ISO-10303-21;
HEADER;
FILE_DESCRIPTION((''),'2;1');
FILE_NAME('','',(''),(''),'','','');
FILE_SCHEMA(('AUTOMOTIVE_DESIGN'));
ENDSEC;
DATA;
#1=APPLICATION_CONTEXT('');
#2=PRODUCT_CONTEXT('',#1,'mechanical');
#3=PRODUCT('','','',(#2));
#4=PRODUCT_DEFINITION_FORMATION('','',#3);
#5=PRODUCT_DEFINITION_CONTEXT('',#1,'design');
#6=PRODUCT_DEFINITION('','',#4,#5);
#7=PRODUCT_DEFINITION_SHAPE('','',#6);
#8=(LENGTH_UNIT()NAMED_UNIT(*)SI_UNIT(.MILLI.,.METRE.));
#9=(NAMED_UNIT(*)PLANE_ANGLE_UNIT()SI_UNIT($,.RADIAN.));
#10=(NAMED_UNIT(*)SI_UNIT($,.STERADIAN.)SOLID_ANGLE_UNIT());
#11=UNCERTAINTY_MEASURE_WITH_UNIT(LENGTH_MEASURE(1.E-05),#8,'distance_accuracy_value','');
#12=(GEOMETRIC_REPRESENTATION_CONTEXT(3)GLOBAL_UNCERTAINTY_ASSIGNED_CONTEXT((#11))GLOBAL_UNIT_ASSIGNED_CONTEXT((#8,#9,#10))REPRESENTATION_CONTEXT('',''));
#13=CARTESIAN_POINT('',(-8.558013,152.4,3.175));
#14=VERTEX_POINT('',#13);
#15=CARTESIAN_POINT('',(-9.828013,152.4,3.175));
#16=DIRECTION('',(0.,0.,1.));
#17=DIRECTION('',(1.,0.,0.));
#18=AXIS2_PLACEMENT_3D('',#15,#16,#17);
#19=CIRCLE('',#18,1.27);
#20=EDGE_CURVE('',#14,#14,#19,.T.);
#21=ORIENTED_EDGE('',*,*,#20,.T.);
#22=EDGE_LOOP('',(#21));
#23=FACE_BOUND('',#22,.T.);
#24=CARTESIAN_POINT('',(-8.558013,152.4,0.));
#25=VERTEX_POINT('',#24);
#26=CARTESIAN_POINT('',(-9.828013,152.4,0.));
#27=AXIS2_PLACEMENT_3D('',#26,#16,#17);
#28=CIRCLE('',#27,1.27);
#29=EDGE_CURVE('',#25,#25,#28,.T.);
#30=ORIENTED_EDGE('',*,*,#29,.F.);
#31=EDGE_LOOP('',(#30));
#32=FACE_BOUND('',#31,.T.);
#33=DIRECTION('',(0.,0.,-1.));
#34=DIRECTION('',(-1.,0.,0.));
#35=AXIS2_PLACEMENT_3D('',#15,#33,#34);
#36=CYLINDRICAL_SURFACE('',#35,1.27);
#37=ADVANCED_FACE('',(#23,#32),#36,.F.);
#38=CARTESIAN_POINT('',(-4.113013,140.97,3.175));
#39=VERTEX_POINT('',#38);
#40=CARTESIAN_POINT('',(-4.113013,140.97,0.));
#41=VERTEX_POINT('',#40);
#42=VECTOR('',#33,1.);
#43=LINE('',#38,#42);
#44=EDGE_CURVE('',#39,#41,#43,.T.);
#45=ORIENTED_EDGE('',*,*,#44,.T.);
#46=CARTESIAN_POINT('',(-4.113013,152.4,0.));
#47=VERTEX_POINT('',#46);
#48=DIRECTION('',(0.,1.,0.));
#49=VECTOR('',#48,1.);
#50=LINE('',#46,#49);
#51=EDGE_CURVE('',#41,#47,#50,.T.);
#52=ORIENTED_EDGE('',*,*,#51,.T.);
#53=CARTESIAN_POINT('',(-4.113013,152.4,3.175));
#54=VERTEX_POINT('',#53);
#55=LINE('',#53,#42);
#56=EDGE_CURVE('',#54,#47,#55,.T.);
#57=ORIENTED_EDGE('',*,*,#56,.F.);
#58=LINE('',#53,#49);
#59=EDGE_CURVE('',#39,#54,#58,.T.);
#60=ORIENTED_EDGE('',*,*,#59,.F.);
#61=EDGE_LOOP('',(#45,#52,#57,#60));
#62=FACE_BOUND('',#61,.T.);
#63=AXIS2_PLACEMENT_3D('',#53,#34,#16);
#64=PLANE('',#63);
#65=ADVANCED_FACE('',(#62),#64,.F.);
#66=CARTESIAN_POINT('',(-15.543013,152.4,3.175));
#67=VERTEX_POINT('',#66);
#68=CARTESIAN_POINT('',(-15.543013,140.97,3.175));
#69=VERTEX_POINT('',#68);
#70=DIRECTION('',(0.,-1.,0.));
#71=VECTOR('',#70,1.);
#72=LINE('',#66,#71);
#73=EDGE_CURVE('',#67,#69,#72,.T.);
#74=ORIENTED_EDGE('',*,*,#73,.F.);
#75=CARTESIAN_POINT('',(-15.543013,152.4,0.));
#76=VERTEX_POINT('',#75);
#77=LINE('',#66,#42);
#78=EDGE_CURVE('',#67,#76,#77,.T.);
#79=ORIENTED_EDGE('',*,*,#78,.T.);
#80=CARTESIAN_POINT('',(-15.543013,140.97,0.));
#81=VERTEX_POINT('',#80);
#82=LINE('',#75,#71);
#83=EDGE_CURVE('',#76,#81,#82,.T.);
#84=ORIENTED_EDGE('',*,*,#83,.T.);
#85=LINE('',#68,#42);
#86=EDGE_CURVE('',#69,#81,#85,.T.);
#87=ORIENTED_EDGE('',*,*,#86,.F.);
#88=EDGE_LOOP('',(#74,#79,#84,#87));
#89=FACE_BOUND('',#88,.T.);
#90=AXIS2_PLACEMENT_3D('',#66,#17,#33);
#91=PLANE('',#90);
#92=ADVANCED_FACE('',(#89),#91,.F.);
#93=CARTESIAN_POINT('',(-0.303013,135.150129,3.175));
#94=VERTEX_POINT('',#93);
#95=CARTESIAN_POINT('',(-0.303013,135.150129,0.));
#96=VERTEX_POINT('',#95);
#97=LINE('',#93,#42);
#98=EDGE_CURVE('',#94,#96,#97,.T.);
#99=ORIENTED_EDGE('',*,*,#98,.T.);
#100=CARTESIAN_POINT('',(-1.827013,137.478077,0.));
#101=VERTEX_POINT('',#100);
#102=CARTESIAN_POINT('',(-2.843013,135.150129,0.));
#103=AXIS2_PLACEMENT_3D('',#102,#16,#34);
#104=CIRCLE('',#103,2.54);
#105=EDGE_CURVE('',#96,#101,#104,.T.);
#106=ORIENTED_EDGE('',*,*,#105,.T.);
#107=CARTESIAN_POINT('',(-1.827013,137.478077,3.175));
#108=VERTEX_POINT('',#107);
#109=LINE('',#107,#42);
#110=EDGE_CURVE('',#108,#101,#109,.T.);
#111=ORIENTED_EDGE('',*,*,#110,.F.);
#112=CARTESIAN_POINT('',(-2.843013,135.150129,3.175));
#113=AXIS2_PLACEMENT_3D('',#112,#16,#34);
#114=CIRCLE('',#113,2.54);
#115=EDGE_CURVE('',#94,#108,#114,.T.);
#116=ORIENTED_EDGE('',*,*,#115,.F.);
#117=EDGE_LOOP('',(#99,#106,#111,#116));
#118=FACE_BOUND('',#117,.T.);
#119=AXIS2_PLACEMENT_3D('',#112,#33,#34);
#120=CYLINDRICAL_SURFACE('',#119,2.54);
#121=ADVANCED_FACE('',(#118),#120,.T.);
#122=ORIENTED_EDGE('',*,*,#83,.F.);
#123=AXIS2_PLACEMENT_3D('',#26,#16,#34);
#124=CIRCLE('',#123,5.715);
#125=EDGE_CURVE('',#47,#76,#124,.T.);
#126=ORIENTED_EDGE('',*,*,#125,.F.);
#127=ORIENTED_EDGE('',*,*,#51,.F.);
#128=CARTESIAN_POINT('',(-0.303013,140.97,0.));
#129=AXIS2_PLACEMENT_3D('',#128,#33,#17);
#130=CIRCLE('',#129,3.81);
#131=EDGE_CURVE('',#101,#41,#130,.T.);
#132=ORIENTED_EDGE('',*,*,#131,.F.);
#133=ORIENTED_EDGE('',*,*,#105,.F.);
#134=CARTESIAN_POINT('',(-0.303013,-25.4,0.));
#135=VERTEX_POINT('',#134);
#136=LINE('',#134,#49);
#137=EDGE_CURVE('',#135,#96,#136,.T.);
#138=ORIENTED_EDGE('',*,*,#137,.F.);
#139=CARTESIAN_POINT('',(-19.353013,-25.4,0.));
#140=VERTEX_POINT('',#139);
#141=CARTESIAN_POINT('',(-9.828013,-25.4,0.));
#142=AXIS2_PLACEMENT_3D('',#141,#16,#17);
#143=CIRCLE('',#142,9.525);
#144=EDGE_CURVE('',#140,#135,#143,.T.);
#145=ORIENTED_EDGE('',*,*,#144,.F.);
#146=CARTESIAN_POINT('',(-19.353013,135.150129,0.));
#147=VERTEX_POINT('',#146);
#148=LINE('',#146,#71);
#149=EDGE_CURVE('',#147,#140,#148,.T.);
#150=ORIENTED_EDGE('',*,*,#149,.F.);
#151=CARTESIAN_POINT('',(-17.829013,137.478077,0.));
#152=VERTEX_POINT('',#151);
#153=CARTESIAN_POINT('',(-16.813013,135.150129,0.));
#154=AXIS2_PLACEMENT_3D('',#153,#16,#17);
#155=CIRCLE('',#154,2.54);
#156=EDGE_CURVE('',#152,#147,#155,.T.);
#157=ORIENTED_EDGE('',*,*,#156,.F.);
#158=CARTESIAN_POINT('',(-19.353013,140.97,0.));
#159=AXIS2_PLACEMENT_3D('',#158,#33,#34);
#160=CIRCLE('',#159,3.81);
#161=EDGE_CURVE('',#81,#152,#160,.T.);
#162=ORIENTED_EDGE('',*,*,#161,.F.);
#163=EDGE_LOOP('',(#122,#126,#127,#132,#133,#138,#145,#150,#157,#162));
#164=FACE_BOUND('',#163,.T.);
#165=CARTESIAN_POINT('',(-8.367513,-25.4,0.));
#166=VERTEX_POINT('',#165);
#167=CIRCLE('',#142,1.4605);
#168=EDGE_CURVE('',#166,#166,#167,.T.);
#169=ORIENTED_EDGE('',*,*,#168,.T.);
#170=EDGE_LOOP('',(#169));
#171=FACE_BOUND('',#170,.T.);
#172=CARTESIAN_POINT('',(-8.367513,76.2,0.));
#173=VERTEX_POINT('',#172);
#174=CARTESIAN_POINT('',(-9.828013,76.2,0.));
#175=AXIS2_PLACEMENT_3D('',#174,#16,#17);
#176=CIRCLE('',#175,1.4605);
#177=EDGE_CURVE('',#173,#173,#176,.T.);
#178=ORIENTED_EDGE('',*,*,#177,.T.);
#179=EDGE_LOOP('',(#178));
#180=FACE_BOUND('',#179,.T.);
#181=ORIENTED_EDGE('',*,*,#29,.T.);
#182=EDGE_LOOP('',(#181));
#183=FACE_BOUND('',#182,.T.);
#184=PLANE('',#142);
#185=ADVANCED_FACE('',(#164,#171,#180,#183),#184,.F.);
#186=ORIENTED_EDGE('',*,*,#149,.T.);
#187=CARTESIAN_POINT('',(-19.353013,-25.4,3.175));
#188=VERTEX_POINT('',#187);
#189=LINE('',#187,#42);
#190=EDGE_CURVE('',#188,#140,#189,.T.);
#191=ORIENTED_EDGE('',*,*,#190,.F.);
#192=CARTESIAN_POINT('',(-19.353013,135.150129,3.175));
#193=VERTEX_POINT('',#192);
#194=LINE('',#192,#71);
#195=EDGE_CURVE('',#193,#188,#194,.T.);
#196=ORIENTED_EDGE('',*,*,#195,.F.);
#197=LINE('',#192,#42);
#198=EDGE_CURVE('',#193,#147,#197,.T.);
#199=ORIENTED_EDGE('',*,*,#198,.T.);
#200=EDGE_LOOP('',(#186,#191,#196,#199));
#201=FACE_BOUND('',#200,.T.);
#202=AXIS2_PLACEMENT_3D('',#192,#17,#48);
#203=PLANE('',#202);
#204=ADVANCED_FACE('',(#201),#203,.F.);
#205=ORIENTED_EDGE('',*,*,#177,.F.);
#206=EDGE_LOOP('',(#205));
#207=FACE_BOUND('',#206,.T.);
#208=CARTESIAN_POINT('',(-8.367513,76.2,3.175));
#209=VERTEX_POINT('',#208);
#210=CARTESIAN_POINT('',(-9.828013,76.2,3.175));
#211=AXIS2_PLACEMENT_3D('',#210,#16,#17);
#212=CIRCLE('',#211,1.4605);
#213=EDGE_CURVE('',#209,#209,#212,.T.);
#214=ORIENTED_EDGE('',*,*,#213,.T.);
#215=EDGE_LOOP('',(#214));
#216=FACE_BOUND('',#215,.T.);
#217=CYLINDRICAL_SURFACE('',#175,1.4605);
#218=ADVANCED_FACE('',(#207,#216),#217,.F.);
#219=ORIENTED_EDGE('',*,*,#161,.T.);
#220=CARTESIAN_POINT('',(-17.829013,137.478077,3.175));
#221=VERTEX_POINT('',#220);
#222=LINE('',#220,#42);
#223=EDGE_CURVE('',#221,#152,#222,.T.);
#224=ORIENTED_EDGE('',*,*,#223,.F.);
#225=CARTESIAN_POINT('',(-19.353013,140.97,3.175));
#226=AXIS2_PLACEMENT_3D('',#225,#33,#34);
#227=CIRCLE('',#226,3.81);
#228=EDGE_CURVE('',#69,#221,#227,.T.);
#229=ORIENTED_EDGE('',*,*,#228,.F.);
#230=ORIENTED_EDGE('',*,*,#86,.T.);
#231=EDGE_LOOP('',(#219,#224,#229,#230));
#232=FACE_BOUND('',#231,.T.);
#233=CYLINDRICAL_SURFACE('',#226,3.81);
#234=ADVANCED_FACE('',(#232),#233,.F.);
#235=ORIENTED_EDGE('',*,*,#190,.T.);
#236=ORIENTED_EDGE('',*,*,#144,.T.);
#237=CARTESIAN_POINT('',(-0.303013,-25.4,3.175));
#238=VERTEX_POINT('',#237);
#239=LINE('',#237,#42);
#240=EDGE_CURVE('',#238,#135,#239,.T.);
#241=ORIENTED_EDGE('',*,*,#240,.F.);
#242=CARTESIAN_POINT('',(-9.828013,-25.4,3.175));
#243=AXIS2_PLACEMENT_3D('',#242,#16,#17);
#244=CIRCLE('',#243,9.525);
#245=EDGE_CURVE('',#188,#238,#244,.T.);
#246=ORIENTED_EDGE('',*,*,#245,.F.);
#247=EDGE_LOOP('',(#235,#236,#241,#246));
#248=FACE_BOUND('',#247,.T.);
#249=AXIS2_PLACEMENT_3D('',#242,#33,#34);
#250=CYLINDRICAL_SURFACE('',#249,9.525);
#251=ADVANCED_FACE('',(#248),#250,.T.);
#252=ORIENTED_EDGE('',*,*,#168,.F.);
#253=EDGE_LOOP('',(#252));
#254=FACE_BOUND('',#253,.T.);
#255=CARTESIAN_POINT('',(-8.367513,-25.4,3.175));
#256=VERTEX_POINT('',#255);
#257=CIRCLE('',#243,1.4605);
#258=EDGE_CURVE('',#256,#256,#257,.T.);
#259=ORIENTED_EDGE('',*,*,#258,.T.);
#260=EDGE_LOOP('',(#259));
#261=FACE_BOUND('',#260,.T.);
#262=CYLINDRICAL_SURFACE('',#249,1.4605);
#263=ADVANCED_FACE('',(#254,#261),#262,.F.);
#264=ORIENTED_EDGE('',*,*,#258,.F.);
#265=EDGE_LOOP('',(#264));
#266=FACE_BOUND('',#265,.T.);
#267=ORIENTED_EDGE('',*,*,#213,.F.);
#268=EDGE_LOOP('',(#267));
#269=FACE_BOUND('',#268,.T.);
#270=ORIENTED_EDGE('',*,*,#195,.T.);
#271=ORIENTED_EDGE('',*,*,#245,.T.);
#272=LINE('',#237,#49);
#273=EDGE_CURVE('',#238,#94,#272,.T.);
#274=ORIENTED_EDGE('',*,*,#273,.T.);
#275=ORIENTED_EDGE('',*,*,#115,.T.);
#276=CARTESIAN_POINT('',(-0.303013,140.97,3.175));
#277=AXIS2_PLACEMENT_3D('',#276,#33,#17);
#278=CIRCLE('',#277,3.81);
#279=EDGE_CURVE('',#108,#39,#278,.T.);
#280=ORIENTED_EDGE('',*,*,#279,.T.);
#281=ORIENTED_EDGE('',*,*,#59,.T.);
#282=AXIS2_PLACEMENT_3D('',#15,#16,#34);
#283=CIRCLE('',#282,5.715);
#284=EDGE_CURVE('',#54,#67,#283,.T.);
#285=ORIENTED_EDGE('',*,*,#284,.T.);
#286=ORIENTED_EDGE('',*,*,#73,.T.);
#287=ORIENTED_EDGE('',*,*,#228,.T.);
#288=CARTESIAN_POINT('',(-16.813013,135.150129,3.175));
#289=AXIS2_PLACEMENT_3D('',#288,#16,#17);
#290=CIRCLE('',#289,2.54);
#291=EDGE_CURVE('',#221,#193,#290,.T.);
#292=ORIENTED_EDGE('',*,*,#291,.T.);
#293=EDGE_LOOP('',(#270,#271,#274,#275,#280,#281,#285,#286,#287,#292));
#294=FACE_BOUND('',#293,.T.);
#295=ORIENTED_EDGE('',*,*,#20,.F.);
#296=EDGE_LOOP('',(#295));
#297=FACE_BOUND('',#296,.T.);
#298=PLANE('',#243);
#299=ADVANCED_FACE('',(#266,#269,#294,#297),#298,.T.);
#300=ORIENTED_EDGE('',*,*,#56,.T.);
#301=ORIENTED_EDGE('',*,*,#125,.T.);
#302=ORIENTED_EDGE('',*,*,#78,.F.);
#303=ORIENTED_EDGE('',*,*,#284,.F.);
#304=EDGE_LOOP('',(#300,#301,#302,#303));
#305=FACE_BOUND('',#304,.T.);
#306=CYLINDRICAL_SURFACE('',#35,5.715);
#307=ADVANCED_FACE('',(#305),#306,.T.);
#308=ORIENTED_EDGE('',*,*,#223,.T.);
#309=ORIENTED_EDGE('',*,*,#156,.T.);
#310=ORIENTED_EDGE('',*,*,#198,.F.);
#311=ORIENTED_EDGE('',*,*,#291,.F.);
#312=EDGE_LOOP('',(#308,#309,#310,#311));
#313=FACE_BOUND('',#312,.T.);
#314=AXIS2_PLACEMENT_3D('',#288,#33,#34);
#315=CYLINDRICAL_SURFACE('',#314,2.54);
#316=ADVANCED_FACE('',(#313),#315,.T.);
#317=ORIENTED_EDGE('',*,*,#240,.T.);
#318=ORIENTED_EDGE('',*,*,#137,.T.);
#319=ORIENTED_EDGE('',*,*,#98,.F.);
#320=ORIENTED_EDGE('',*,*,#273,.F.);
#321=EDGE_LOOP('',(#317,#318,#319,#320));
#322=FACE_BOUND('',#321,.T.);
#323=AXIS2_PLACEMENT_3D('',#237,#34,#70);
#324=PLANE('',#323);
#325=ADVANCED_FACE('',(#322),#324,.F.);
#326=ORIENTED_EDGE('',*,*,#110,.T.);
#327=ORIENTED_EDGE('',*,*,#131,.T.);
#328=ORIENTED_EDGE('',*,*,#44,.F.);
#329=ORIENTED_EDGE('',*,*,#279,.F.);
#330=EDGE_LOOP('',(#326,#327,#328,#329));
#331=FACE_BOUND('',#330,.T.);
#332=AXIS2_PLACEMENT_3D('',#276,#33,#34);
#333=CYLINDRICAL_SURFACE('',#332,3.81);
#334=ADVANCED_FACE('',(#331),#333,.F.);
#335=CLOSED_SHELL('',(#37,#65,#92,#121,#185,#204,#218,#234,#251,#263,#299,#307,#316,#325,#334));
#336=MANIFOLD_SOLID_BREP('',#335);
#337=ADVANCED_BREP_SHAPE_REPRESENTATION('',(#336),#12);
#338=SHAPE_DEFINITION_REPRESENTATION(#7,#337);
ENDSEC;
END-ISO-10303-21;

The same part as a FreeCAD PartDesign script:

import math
import FreeCAD as App
import Part
import Sketcher

V = App.Vector
Q = App.Units.Quantity

doc = App.newDocument("Part")
body = doc.addObject("PartDesign::Body", "Body")

# Sketch on XY plane
sketch1 = body.newObject("Sketcher::SketchObject", "Sketch")
sketch1.AttachmentSupport = (doc.getObject("XY_Plane"), [""])
sketch1.MapMode = "FlatFace"
sketch1.addGeometry(Part.LineSegment(V(-19.353013, 135.150129, 0), V(-19.353013, -25.4, 0)), False)
sketch1.addGeometry(Part.ArcOfCircle(Part.Circle(V(-9.828013, -25.4, 0), V(0, 0, 1), 9.525), math.radians(180), math.radians(360)), False)
sketch1.addGeometry(Part.LineSegment(V(-0.303013, -25.4, 0), V(-0.303013, 135.150129, 0)), False)
sketch1.addGeometry(Part.ArcOfCircle(Part.Circle(V(-2.843013, 135.150129, 0), V(0, 0, 1), 2.54), math.radians(0), math.radians(66.421821)), False)
sketch1.addGeometry(Part.ArcOfCircle(Part.Circle(V(-0.303013, 140.97, 0), V(0, 0, 1), 3.81), math.radians(180), math.radians(246.421822)), False)
sketch1.addGeometry(Part.LineSegment(V(-4.113013, 140.97, 0), V(-4.113013, 152.4, 0)), False)
sketch1.addGeometry(Part.ArcOfCircle(Part.Circle(V(-9.828013, 152.4, 0), V(0, 0, 1), 5.715), math.radians(0), math.radians(180)), False)
sketch1.addGeometry(Part.LineSegment(V(-15.543013, 152.4, 0), V(-15.543013, 140.97, 0)), False)
sketch1.addGeometry(Part.ArcOfCircle(Part.Circle(V(-19.353013, 140.97, 0), V(0, 0, 1), 3.81), math.radians(-66.421822), math.radians(0)), False)
sketch1.addGeometry(Part.ArcOfCircle(Part.Circle(V(-16.813013, 135.150129, 0), V(0, 0, 1), 2.54), math.radians(113.578178), math.radians(180)), False)
sketch1.addGeometry(Part.Circle(V(-9.828013, -25.4, 0), V(0, 0, 1), 1.4605), False)
sketch1.addGeometry(Part.Circle(V(-9.828013, 152.4, 0), V(0, 0, 1), 1.27), False)
sketch1.addConstraint(Sketcher.Constraint("Tangent", 0, 2, 1, 1))
sketch1.addConstraint(Sketcher.Constraint("Tangent", 1, 2, 2, 1))
sketch1.addConstraint(Sketcher.Constraint("Tangent", 2, 2, 3, 1))
sketch1.addConstraint(Sketcher.Constraint("Tangent", 3, 2, 4, 2))
sketch1.addConstraint(Sketcher.Constraint("Tangent", 4, 1, 5, 1))
sketch1.addConstraint(Sketcher.Constraint("Tangent", 5, 2, 6, 1))
sketch1.addConstraint(Sketcher.Constraint("Tangent", 6, 2, 7, 1))
sketch1.addConstraint(Sketcher.Constraint("Tangent", 7, 2, 8, 2))
sketch1.addConstraint(Sketcher.Constraint("Tangent", 8, 1, 9, 1))
sketch1.addConstraint(Sketcher.Constraint("Tangent", 9, 2, 0, 1))
sketch1.addConstraint(Sketcher.Constraint("Vertical", 0))
sketch1.addConstraint(Sketcher.Constraint("Vertical", 2))
sketch1.addConstraint(Sketcher.Constraint("Vertical", 5))
sketch1.addConstraint(Sketcher.Constraint("Vertical", 7))
sketch1.addConstraint(Sketcher.Constraint("Coincident", 10, 3, 1, 3))
sketch1.addConstraint(Sketcher.Constraint("Coincident", 11, 3, 6, 3))
sketch1.addConstraint(Sketcher.Constraint("Equal", 4, 8))
sketch1.addConstraint(Sketcher.Constraint("Equal", 3, 9))
sketch1.addConstraint(Sketcher.Constraint("Horizontal", 4, 3, 8, 3))
sketch1.addConstraint(Sketcher.Constraint("Horizontal", 3, 3, 9, 3))
sketch1.addConstraint(Sketcher.Constraint("Vertical", 8, 3, 0, 2))
sketch1.addConstraint(Sketcher.Constraint("Diameter", 11, Q("0.1 in")))
sketch1.addConstraint(Sketcher.Constraint("Radius", 3, Q("0.1 in")))
sketch1.addConstraint(Sketcher.Constraint("Radius", 4, Q("0.15 in")))
sketch1.addConstraint(Sketcher.Constraint("Diameter", 10, Q("0.115 in")))
sketch1.addConstraint(Sketcher.Constraint("DistanceY", 1, 3, -1, 1, Q("1 in")))
sketch1.addConstraint(Sketcher.Constraint("DistanceY", -1, 1, 6, 3, Q("6 in")))
sketch1.addConstraint(Sketcher.Constraint("Radius", 1, Q("0.375 in")))
sketch1.addConstraint(Sketcher.Constraint("DistanceY", 5, 1, 5, 2, Q("0.45 in")))
sketch1.addConstraint(Sketcher.Constraint("DistanceX", 1, 3, -1, 1, 9.828013))
pad1 = body.newObject("PartDesign::Pad", "Pad")
pad1.Profile = sketch1
pad1.Length = Q("0.125 in")

# Sketch on XY plane
sketch2 = body.newObject("Sketcher::SketchObject", "Sketch001")
sketch2.AttachmentSupport = (doc.getObject("XY_Plane"), [""])
sketch2.MapMode = "FlatFace"
sketch2.AttachmentOffset = App.Placement(V(0, 0, 0.125 * 25.4), App.Rotation())
sketch2.addGeometry(Part.Circle(V(-9.828013, 76.2, 0), V(0, 0, 1), 1.4605), False)
sketch2.addConstraint(Sketcher.Constraint("Diameter", 0, Q("0.115 in")))
sketch2.addConstraint(Sketcher.Constraint("DistanceY", -1, 1, 0, 3, Q("3 in")))
sketch2.addConstraint(Sketcher.Constraint("DistanceX", 0, 3, -1, 1, 9.828013))
pocket1 = body.newObject("PartDesign::Pocket", "Pocket")
pocket1.Profile = sketch2
pocket1.Length = Q("0.125 in")

doc.recompute()
